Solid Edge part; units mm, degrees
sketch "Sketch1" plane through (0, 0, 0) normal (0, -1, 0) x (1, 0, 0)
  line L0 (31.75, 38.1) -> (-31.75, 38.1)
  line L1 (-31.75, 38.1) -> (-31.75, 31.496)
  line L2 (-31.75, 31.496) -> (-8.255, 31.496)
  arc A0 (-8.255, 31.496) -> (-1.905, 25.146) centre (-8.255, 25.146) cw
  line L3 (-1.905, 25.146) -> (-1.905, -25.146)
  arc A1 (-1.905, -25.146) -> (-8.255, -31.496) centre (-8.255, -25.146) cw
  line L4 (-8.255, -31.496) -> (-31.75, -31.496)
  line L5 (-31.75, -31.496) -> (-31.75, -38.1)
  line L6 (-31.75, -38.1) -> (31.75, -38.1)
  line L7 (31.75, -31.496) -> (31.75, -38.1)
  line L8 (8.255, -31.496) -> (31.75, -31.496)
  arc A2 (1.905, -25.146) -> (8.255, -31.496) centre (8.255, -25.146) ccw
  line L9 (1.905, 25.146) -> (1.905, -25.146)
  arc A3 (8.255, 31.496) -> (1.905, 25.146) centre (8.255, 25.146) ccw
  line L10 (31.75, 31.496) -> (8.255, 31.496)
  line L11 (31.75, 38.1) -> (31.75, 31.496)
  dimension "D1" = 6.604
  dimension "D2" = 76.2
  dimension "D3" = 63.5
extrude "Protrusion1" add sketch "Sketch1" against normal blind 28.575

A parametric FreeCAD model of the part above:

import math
import FreeCAD as App
import Part
import Sketcher

V = App.Vector
Q = App.Units.Quantity

doc = App.newDocument("Part")
body = doc.addObject("PartDesign::Body", "Body")

# Sketch on XZ plane
sketch1 = doc.addObject("Sketcher::SketchObject", "Sketch")
body.addObject(sketch1)
sketch1.AttachmentSupport = (doc.XZ_Plane, [""])
sketch1.MapMode = "FlatFace"
sketch1.addGeometry(Part.LineSegment(V(32, 31, 0), V(32, 38, 0)), False)
sketch1.addGeometry(Part.LineSegment(V(32, 38, 0), V(-32, 38, 0)), False)
sketch1.addGeometry(Part.LineSegment(V(-32, 38, 0), V(-32, 31, 0)), False)
sketch1.addGeometry(Part.LineSegment(V(-32, 31, 0), V(-8, 31, 0)), False)
sketch1.addGeometry(Part.ArcOfCircle(Part.Circle(V(-8, 25, 0), V(0, 0, 1), 6), math.radians(0), math.radians(90)), False)
sketch1.addGeometry(Part.LineSegment(V(-2, 25, 0), V(-2, -25, 0)), False)
sketch1.addGeometry(Part.ArcOfCircle(Part.Circle(V(-8, -25, 0), V(0, 0, 1), 6), math.radians(-90), math.radians(0)), False)
sketch1.addGeometry(Part.LineSegment(V(-8, -31, 0), V(-32, -31, 0)), False)
sketch1.addGeometry(Part.LineSegment(V(-32, -31, 0), V(-32, -38, 0)), False)
sketch1.addGeometry(Part.LineSegment(V(-32, -38, 0), V(32, -38, 0)), False)
sketch1.addGeometry(Part.LineSegment(V(32, -38, 0), V(32, -31, 0)), False)
sketch1.addGeometry(Part.LineSegment(V(32, -31, 0), V(8, -31, 0)), False)
sketch1.addGeometry(Part.ArcOfCircle(Part.Circle(V(8, -25, 0), V(0, 0, 1), 6), math.radians(180), math.radians(270)), False)
sketch1.addGeometry(Part.LineSegment(V(2, -25, 0), V(2, 25, 0)), False)
sketch1.addGeometry(Part.ArcOfCircle(Part.Circle(V(8, 25, 0), V(0, 0, 1), 6), math.radians(90), math.radians(180)), False)
sketch1.addGeometry(Part.LineSegment(V(8, 31, 0), V(32, 31, 0)), False)
sketch1.addConstraint(Sketcher.Constraint("Coincident", 0, 2, 1, 1))
sketch1.addConstraint(Sketcher.Constraint("Coincident", 1, 2, 2, 1))
sketch1.addConstraint(Sketcher.Constraint("Coincident", 2, 2, 3, 1))
sketch1.addConstraint(Sketcher.Constraint("Tangent", 3, 2, 4, 2))
sketch1.addConstraint(Sketcher.Constraint("Tangent", 4, 1, 5, 1))
sketch1.addConstraint(Sketcher.Constraint("Tangent", 5, 2, 6, 2))
sketch1.addConstraint(Sketcher.Constraint("Tangent", 6, 1, 7, 1))
sketch1.addConstraint(Sketcher.Constraint("Coincident", 7, 2, 8, 1))
sketch1.addConstraint(Sketcher.Constraint("Coincident", 8, 2, 9, 1))
sketch1.addConstraint(Sketcher.Constraint("Coincident", 9, 2, 10, 1))
sketch1.addConstraint(Sketcher.Constraint("Coincident", 10, 2, 11, 1))
sketch1.addConstraint(Sketcher.Constraint("Tangent", 11, 2, 12, 2))
sketch1.addConstraint(Sketcher.Constraint("Tangent", 12, 1, 13, 1))
sketch1.addConstraint(Sketcher.Constraint("Tangent", 13, 2, 14, 2))
sketch1.addConstraint(Sketcher.Constraint("Tangent", 14, 1, 15, 1))
sketch1.addConstraint(Sketcher.Constraint("Coincident", 15, 2, 0, 1))
sketch1.addConstraint(Sketcher.Constraint("Vertical", 0))
sketch1.addConstraint(Sketcher.Constraint("Horizontal", 1))
sketch1.addConstraint(Sketcher.Constraint("Vertical", 2))
sketch1.addConstraint(Sketcher.Constraint("Horizontal", 3))
sketch1.addConstraint(Sketcher.Constraint("Vertical", 5))
sketch1.addConstraint(Sketcher.Constraint("Horizontal", 7))
sketch1.addConstraint(Sketcher.Constraint("Vertical", 8))
sketch1.addConstraint(Sketcher.Constraint("Horizontal", 9))
sketch1.addConstraint(Sketcher.Constraint("Vertical", 10))
sketch1.addConstraint(Sketcher.Constraint("Horizontal", 11))
sketch1.addConstraint(Sketcher.Constraint("Vertical", 13))
sketch1.addConstraint(Sketcher.Constraint("Horizontal", 15))
sketch1.addConstraint(Sketcher.Constraint("Equal", 4, 6))
sketch1.addConstraint(Sketcher.Constraint("Equal", 6, 12))
sketch1.addConstraint(Sketcher.Constraint("Equal", 12, 14))
sketch1.addConstraint(Sketcher.Constraint("Symmetric", 4, 3, 12, 3, -1, 1))
sketch1.addConstraint(Sketcher.Constraint("Symmetric", 0, 2, 8, 2, -1, 1))
sketch1.addConstraint(Sketcher.Constraint("Symmetric", 7, 2, 10, 2, -2))
sketch1.addConstraint(Sketcher.Constraint("Symmetric", 2, 2, 15, 2, -2))
sketch1.addConstraint(Sketcher.Constraint("Radius", 4, Q("0.25 in")))
sketch1.addConstraint(Sketcher.Constraint("DistanceX", 1, 2, 1, 1, Q("2.5 in")))
sketch1.addConstraint(Sketcher.Constraint("DistanceY", 0, 1, 0, 2, Q("0.26 in")))
sketch1.addConstraint(Sketcher.Constraint("DistanceY", 5, 2, 5, 1, Q("1.98 in")))
sketch1.addConstraint(Sketcher.Constraint("DistanceX", 4, 1, 14, 3, Q("0.4 in")))
pad1 = doc.addObject("PartDesign::Pad", "Pad")
body.addObject(pad1)
pad1.Profile = sketch1
pad1.Length = Q("1.125 in")
pad1.Reversed = True

doc.recompute()
